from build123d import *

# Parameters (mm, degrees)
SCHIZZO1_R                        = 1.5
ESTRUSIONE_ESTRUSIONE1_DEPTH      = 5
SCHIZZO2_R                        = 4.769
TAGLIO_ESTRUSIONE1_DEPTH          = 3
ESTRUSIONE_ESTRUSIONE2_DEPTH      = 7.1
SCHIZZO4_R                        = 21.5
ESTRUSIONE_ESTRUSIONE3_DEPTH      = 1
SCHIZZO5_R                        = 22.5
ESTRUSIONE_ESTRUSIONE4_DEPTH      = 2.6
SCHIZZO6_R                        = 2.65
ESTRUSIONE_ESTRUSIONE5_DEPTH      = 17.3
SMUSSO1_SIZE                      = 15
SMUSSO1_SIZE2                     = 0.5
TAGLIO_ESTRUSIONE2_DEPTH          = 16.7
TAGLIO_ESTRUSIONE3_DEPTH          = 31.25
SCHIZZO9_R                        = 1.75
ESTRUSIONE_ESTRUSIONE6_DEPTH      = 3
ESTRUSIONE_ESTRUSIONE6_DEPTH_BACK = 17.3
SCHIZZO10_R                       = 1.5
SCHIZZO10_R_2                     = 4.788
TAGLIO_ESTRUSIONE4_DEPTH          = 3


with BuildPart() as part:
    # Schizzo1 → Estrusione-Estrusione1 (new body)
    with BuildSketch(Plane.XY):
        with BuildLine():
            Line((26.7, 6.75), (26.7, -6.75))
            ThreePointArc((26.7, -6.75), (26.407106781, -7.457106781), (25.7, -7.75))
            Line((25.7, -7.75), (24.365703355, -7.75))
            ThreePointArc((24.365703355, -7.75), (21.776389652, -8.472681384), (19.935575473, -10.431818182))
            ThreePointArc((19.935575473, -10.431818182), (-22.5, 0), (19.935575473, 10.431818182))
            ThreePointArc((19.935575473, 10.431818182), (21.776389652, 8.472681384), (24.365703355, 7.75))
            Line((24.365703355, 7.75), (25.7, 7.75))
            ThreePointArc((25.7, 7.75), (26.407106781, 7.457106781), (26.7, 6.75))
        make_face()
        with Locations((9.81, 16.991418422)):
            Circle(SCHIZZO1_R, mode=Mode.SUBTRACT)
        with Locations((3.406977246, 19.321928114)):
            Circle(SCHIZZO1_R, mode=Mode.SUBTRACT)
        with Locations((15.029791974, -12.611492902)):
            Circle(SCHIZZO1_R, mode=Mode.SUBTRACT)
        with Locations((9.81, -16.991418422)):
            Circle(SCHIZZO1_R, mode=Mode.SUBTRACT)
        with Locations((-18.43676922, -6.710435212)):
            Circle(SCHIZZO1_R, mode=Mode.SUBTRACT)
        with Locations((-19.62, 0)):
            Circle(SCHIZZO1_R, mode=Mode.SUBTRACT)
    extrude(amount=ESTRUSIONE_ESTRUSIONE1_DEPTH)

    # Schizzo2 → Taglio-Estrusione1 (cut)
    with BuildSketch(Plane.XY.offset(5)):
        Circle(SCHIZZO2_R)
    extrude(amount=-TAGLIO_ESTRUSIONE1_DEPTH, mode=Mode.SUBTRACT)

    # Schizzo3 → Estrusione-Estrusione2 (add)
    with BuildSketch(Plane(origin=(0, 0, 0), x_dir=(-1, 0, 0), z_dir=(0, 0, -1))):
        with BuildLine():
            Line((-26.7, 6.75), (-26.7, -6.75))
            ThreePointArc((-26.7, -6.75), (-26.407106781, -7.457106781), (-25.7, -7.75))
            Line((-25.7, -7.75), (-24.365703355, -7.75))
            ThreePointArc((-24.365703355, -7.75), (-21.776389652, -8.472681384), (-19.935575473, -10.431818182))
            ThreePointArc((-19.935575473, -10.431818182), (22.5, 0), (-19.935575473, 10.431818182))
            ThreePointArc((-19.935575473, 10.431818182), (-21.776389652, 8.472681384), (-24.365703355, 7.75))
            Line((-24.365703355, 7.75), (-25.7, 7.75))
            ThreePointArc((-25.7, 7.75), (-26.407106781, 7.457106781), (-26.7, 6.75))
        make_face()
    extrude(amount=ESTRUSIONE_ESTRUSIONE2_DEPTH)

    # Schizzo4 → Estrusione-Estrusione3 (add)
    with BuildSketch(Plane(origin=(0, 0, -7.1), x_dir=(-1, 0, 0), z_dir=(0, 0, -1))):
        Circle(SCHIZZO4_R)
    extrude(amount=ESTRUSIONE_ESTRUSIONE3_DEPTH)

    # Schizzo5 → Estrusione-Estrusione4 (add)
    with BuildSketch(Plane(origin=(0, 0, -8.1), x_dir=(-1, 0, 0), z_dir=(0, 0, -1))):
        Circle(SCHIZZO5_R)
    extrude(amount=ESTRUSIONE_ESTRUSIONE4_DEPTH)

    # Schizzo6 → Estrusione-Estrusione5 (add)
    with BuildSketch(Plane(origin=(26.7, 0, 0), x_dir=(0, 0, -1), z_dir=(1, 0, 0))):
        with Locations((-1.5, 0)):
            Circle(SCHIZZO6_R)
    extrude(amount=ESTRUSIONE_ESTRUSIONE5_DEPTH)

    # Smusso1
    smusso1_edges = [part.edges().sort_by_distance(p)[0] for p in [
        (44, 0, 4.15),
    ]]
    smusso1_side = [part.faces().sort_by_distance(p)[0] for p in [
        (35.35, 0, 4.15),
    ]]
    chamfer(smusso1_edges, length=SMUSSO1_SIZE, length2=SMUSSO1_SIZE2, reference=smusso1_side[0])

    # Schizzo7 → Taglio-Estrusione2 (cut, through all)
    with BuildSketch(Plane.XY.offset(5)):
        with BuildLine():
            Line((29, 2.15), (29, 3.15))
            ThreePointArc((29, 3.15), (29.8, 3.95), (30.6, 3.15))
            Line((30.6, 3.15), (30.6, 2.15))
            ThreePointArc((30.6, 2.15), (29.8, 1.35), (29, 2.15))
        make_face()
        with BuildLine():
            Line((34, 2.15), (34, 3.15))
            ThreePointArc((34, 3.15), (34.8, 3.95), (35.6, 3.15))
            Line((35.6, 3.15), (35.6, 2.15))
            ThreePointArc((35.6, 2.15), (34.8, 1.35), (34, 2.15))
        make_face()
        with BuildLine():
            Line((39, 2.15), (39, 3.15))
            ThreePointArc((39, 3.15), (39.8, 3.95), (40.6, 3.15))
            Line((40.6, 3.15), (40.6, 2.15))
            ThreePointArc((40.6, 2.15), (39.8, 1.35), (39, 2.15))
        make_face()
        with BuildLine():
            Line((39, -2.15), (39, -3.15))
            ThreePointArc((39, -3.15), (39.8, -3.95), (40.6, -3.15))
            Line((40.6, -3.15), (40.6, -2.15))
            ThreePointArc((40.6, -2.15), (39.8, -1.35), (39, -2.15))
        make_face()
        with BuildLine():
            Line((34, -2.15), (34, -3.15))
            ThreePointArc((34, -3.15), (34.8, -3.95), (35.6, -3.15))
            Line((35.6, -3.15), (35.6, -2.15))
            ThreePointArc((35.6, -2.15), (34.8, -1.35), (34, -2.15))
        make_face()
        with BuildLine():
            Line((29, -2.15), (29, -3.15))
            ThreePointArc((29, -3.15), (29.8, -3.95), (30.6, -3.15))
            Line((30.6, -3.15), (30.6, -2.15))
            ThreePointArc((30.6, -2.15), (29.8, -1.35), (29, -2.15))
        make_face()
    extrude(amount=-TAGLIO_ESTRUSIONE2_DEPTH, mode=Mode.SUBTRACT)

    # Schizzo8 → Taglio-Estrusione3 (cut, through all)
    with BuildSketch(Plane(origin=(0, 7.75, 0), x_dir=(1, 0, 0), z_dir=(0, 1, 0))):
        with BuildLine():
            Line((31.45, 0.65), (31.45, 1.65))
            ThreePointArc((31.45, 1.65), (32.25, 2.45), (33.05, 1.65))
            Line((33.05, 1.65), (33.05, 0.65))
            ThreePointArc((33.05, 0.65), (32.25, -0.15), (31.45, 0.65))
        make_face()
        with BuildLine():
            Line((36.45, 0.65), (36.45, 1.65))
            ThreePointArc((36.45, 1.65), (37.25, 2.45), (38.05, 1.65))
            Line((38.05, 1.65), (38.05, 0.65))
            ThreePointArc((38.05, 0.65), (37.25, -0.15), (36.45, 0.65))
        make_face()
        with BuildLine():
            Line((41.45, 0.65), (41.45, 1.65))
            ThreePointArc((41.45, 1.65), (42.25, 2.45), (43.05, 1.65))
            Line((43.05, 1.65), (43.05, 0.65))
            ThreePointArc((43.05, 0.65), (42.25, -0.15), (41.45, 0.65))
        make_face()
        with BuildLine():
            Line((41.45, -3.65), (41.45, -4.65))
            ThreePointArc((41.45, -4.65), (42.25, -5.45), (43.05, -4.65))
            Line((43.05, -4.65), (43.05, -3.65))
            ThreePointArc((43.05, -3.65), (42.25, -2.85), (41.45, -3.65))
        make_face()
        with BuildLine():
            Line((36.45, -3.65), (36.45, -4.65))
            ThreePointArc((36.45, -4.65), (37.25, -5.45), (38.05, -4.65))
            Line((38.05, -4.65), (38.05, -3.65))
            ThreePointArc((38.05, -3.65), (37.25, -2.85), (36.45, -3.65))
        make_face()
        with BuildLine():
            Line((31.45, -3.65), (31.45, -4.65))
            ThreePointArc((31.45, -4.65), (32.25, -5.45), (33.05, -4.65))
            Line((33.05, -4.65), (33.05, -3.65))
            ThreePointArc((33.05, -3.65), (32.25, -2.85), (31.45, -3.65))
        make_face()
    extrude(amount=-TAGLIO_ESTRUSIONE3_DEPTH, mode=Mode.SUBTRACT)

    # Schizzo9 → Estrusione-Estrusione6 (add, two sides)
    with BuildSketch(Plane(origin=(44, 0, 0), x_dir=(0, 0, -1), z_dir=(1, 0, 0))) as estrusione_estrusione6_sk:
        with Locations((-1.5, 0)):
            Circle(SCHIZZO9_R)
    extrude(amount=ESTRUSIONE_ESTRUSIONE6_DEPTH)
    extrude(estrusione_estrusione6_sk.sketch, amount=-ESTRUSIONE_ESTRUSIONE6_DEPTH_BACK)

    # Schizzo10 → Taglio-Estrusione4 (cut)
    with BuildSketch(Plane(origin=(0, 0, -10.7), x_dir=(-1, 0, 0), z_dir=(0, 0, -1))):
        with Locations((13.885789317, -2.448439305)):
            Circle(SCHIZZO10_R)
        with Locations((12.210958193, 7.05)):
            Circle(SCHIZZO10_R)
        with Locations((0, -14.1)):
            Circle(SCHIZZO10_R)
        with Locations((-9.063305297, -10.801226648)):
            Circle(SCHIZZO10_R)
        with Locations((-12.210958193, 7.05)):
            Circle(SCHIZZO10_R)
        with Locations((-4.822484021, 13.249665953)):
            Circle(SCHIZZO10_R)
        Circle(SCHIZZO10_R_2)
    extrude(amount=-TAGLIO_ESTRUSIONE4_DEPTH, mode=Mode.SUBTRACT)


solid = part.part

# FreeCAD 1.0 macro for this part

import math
import FreeCAD as App
import Part
import Sketcher

V = App.Vector
Q = App.Units.Quantity


def edges_at(feature, points):
    """Names of the edges that pass closest to the given points."""
    edges = feature.Shape.Edges
    near = lambda p: min(range(len(edges)), key=lambda i: edges[i].distToShape(Part.Vertex(*p))[0])
    return sorted({f"Edge{near(p) + 1}" for p in points})

doc = App.newDocument("Part")
params = doc.addObject("Spreadsheet::Sheet", "Params")
for row, (alias, value) in enumerate([
    ("sketch1_diameter", "3 mm"),
    ("sketch1_radius", "1 mm"),
    ("sketch1_radius2", "5 mm"),
    ("sketch1_radius3", "22.5 mm"),
    ("sketch1_height", "13.5 mm"),
    ("pad1_length", "5 mm"),
    ("pocket1_length", "3 mm"),
    ("sketch3_radius", "1 mm"),
    ("sketch3_radius2", "5 mm"),
    ("sketch3_radius3", "22.5 mm"),
    ("sketch3_height", "13.5 mm"),
    ("pad2_length", "7.1 mm"),
    ("sketch4_diameter", "43 mm"),
    ("pad3_length", "1 mm"),
    ("sketch5_diameter", "45 mm"),
    ("pad4_length", "2.6 mm"),
    ("sketch6_diameter", "5.3 mm"),
    ("pad5_length", "17.3 mm"),
    ("chamfer_size", "15 mm"),
    ("chamfer_size2", "0.5 mm"),
    ("sketch7_radius", "0.8 mm"),
    ("sketch7_height", "1 mm"),
    ("sketch8_radius", "0.8 mm"),
    ("sketch8_height", "1 mm"),
    ("sketch9_diameter", "3.5 mm"),
    ("pad6_length", "3 mm"),
    ("pad6_length2", "17.3 mm"),
    ("sketch10_diameter", "3 mm"),
    ("pocket4_length", "3 mm"),
], start=1):
    params.set(f"A{row}", alias)
    params.set(f"B{row}", "=" + value)
    params.setAlias(f"B{row}", alias)

body = doc.addObject("PartDesign::Body", "Body")

sketch1 = doc.addObject("Sketcher::SketchObject", "Sketch")
body.addObject(sketch1)
sketch1.AttachmentSupport = (doc.XY_Plane, [""])
sketch1.MapMode = "FlatFace"
sketch1.addGeometry(Part.LineSegment(V(26.7, -6.8, 0), V(26.7, 6.8, 0)), False)
sketch1.addGeometry(Part.ArcOfCircle(Part.Circle(V(25.7, 6.7, 0), V(0, 0, 1), 1), math.radians(0), math.radians(90)), False)
sketch1.addGeometry(Part.LineSegment(V(25.7, 7.8, 0), V(24.4, 7.8, 0)), False)
sketch1.addGeometry(Part.ArcOfCircle(Part.Circle(V(24.4, 12.8, 0), V(0, 0, 1), 5), math.radians(-152), math.radians(-90)), False)
sketch1.addGeometry(Part.ArcOfCircle(Part.Circle(V(0, 0, 0), V(0, 0, 1), 22.5), math.radians(28), math.radians(332)), False)
sketch1.addGeometry(Part.ArcOfCircle(Part.Circle(V(24.4, -12.8, 0), V(0, 0, 1), 5), math.radians(90), math.radians(152)), False)
sketch1.addGeometry(Part.LineSegment(V(24.4, -7.8, 0), V(25.7, -7.8, 0)), False)
sketch1.addGeometry(Part.ArcOfCircle(Part.Circle(V(25.7, -6.7, 0), V(0, 0, 1), 1), math.radians(-90), math.radians(0)), False)
sketch1.addGeometry(Part.Circle(V(9.8, -17, 0), V(0, 0, 1), 1.5), False)
sketch1.addGeometry(Part.Circle(V(15, -12.6, 0), V(0, 0, 1), 1.5), False)
sketch1.addGeometry(Part.Circle(V(-18.4, -6.7, 0), V(0, 0, 1), 1.5), False)
sketch1.addGeometry(Part.Circle(V(-19.6, 0, 0), V(0, 0, 1), 1.5), False)
sketch1.addGeometry(Part.Circle(V(9.8, 17, 0), V(0, 0, 1), 1.5), False)
sketch1.addGeometry(Part.Circle(V(3.4, 19.3, 0), V(0, 0, 1), 1.5), False)
sketch1.addConstraint(Sketcher.Constraint("Tangent", 0, 2, 1, 1))
sketch1.addConstraint(Sketcher.Constraint("Tangent", 1, 2, 2, 1))
sketch1.addConstraint(Sketcher.Constraint("Tangent", 2, 2, 3, 2))
sketch1.addConstraint(Sketcher.Constraint("Tangent", 3, 1, 4, 1))
sketch1.addConstraint(Sketcher.Constraint("Tangent", 4, 2, 5, 2))
sketch1.addConstraint(Sketcher.Constraint("Tangent", 5, 1, 6, 1))
sketch1.addConstraint(Sketcher.Constraint("Tangent", 6, 2, 7, 1))
sketch1.addConstraint(Sketcher.Constraint("Tangent", 7, 2, 0, 1))
sketch1.addConstraint(Sketcher.Constraint("Vertical", 0))
sketch1.addConstraint(Sketcher.Constraint("Horizontal", 2))
sketch1.addConstraint(Sketcher.Constraint("Horizontal", 6))
sketch1.addConstraint(Sketcher.Constraint("Coincident", 4, 3, -1, 1))
sketch1.addConstraint(Sketcher.Constraint("Equal", 3, 5))
sketch1.addConstraint(Sketcher.Constraint("Equal", 1, 7))
sketch1.addConstraint(Sketcher.Constraint("Equal", 8, 9))
sketch1.addConstraint(Sketcher.Constraint("Equal", 9, 10))
sketch1.addConstraint(Sketcher.Constraint("Equal", 10, 11))
sketch1.addConstraint(Sketcher.Constraint("Equal", 11, 12))
sketch1.addConstraint(Sketcher.Constraint("Equal", 12, 13))
sketch1.addConstraint(Sketcher.Constraint("Symmetric", 8, 3, 12, 3, -1))
sketch1.addConstraint(Sketcher.Constraint("PointOnObject", 11, 3, -1))
sketch1.addConstraint(Sketcher.Constraint("Vertical", 3, 3, 5, 3))
sketch1.addConstraint(Sketcher.Constraint("Diameter", 8, Q("3 mm")))
sketch1.addConstraint(Sketcher.Constraint("Radius", 1, Q("1 mm")))
sketch1.addConstraint(Sketcher.Constraint("Radius", 3, Q("5 mm")))
sketch1.addConstraint(Sketcher.Constraint("Radius", 4, Q("22.5 mm")))
sketch1.addConstraint(Sketcher.Constraint("DistanceY", 0, 1, 0, 2, Q("13.5 mm")))
sketch1.addConstraint(Sketcher.Constraint("DistanceX", -1, 1, 1, 3, Q("25.7 mm")))
sketch1.addConstraint(Sketcher.Constraint("DistanceX", -1, 1, 8, 3, Q("9.81 mm")))
sketch1.addConstraint(Sketcher.Constraint("DistanceX", 11, 3, -1, 1, Q("19.62 mm")))
sketch1.addConstraint(Sketcher.Constraint("DistanceY", 8, 3, 4, 2, Q("6.5596 mm")))
sketch1.addConstraint(Sketcher.Constraint("DistanceX", -1, 1, 9, 3, Q("15.029792 mm")))
sketch1.addConstraint(Sketcher.Constraint("DistanceX", 10, 3, -1, 1, Q("18.436769 mm")))
sketch1.addConstraint(Sketcher.Constraint("DistanceY", -1, 1, 13, 3, Q("19.321928 mm")))
sketch1.addConstraint(Sketcher.Constraint("DistanceY", 9, 3, 12, 3, Q("29.602911 mm")))
sketch1.addConstraint(Sketcher.Constraint("DistanceY", 10, 3, -1, 1, Q("6.710435 mm")))
sketch1.addConstraint(Sketcher.Constraint("DistanceX", -1, 1, 13, 3, Q("3.406977 mm")))
sketch1.setExpression("Constraints[22]", "Params.sketch1_diameter")
sketch1.setExpression("Constraints[23]", "Params.sketch1_radius")
sketch1.setExpression("Constraints[24]", "Params.sketch1_radius2")
sketch1.setExpression("Constraints[25]", "Params.sketch1_radius3")
sketch1.setExpression("Constraints[26]", "Params.sketch1_height")
pad1 = doc.addObject("PartDesign::Pad", "Pad")
body.addObject(pad1)
pad1.Profile = sketch1
pad1.setExpression("Length", "Params.pad1_length")

sketch2 = doc.addObject("Sketcher::SketchObject", "Sketch001")
body.addObject(sketch2)
sketch2.AttachmentSupport = (doc.XY_Plane, [""])
sketch2.MapMode = "FlatFace"
sketch2.AttachmentOffset = App.Placement(V(0, 0, 5), App.Rotation())
sketch2.addGeometry(Part.Circle(V(0, 0, 0), V(0, 0, 1), 4.8), False)
sketch2.addConstraint(Sketcher.Constraint("Coincident", 0, 3, -1, 1))
sketch2.addConstraint(Sketcher.Constraint("Diameter", 0, Q("9.538 mm")))
pocket1 = doc.addObject("PartDesign::Pocket", "Pocket")
body.addObject(pocket1)
pocket1.Profile = sketch2
pocket1.setExpression("Length", "Params.pocket1_length")

sketch3 = doc.addObject("Sketcher::SketchObject", "Sketch002")
body.addObject(sketch3)
sketch3.AttachmentSupport = (doc.XY_Plane, [""])
sketch3.MapMode = "FlatFace"
sketch3.addGeometry(Part.LineSegment(V(26.7, 6.8, 0), V(26.7, -6.8, 0)), False)
sketch3.addGeometry(Part.ArcOfCircle(Part.Circle(V(25.7, -6.7, 0), V(0, 0, 1), 1), math.radians(-90), math.radians(0)), False)
sketch3.addGeometry(Part.LineSegment(V(25.7, -7.8, 0), V(24.4, -7.8, 0)), False)
sketch3.addGeometry(Part.ArcOfCircle(Part.Circle(V(24.4, -12.8, 0), V(0, 0, 1), 5), math.radians(90), math.radians(152)), False)
sketch3.addGeometry(Part.ArcOfCircle(Part.Circle(V(0, 0, 0), V(0, 0, 1), 22.5), math.radians(28), math.radians(332)), False)
sketch3.addGeometry(Part.ArcOfCircle(Part.Circle(V(24.4, 12.8, 0), V(0, 0, 1), 5), math.radians(-152), math.radians(-90)), False)
sketch3.addGeometry(Part.LineSegment(V(24.4, 7.8, 0), V(25.7, 7.8, 0)), False)
sketch3.addGeometry(Part.ArcOfCircle(Part.Circle(V(25.7, 6.7, 0), V(0, 0, 1), 1), math.radians(0), math.radians(90)), False)
sketch3.addConstraint(Sketcher.Constraint("Tangent", 0, 2, 1, 2))
sketch3.addConstraint(Sketcher.Constraint("Tangent", 1, 1, 2, 1))
sketch3.addConstraint(Sketcher.Constraint("Tangent", 2, 2, 3, 1))
sketch3.addConstraint(Sketcher.Constraint("Tangent", 3, 2, 4, 2))
sketch3.addConstraint(Sketcher.Constraint("Tangent", 4, 1, 5, 1))
sketch3.addConstraint(Sketcher.Constraint("Tangent", 5, 2, 6, 1))
sketch3.addConstraint(Sketcher.Constraint("Tangent", 6, 2, 7, 2))
sketch3.addConstraint(Sketcher.Constraint("Tangent", 7, 1, 0, 1))
sketch3.addConstraint(Sketcher.Constraint("Vertical", 0))
sketch3.addConstraint(Sketcher.Constraint("Horizontal", 2))
sketch3.addConstraint(Sketcher.Constraint("Horizontal", 6))
sketch3.addConstraint(Sketcher.Constraint("Coincident", 4, 3, -1, 1))
sketch3.addConstraint(Sketcher.Constraint("Equal", 3, 5))
sketch3.addConstraint(Sketcher.Constraint("Equal", 1, 7))
sketch3.addConstraint(Sketcher.Constraint("Vertical", 3, 3, 5, 3))
sketch3.addConstraint(Sketcher.Constraint("Radius", 1, Q("1 mm")))
sketch3.addConstraint(Sketcher.Constraint("Radius", 3, Q("5 mm")))
sketch3.addConstraint(Sketcher.Constraint("Radius", 4, Q("22.5 mm")))
sketch3.addConstraint(Sketcher.Constraint("DistanceY", 0, 2, 0, 1, Q("13.5 mm")))
sketch3.addConstraint(Sketcher.Constraint("DistanceX", -1, 1, 1, 3, Q("25.7 mm")))
sketch3.setExpression("Constraints[15]", "Params.sketch3_radius")
sketch3.setExpression("Constraints[16]", "Params.sketch3_radius2")
sketch3.setExpression("Constraints[17]", "Params.sketch3_radius3")
sketch3.setExpression("Constraints[18]", "Params.sketch3_height")
pad2 = doc.addObject("PartDesign::Pad", "Pad001")
body.addObject(pad2)
pad2.Profile = sketch3
pad2.setExpression("Length", "Params.pad2_length")
pad2.Reversed = True

sketch4 = doc.addObject("Sketcher::SketchObject", "Sketch003")
body.addObject(sketch4)
sketch4.AttachmentSupport = (doc.XY_Plane, [""])
sketch4.MapMode = "FlatFace"
sketch4.AttachmentOffset = App.Placement(V(0, 0, -7.1), App.Rotation())
sketch4.addGeometry(Part.Circle(V(0, 0, 0), V(0, 0, 1), 22), False)
sketch4.addConstraint(Sketcher.Constraint("Coincident", 0, 3, -1, 1))
sketch4.addConstraint(Sketcher.Constraint("Diameter", 0, Q("43 mm")))
sketch4.setExpression("Constraints[1]", "Params.sketch4_diameter")
pad3 = doc.addObject("PartDesign::Pad", "Pad002")
body.addObject(pad3)
pad3.Profile = sketch4
pad3.setExpression("Length", "Params.pad3_length")
pad3.Reversed = True

sketch5 = doc.addObject("Sketcher::SketchObject", "Sketch004")
body.addObject(sketch5)
sketch5.AttachmentSupport = (doc.XY_Plane, [""])
sketch5.MapMode = "FlatFace"
sketch5.AttachmentOffset = App.Placement(V(0, 0, -8.1), App.Rotation())
sketch5.addGeometry(Part.Circle(V(0, 0, 0), V(0, 0, 1), 22), False)
sketch5.addConstraint(Sketcher.Constraint("Coincident", 0, 3, -1, 1))
sketch5.addConstraint(Sketcher.Constraint("Diameter", 0, Q("45 mm")))
sketch5.setExpression("Constraints[1]", "Params.sketch5_diameter")
pad4 = doc.addObject("PartDesign::Pad", "Pad003")
body.addObject(pad4)
pad4.Profile = sketch5
pad4.setExpression("Length", "Params.pad4_length")
pad4.Reversed = True

sketch6 = doc.addObject("Sketcher::SketchObject", "Sketch005")
body.addObject(sketch6)
sketch6.AttachmentSupport = (doc.YZ_Plane, [""])
sketch6.MapMode = "FlatFace"
sketch6.AttachmentOffset = App.Placement(V(0, 0, 26.7), App.Rotation())
sketch6.addGeometry(Part.Circle(V(0, 1.5, 0), V(0, 0, 1), 2.6), False)
sketch6.addConstraint(Sketcher.Constraint("PointOnObject", 0, 3, -2))
sketch6.addConstraint(Sketcher.Constraint("Diameter", 0, Q("5.3 mm")))
sketch6.addConstraint(Sketcher.Constraint("DistanceY", -1, 1, 0, 3, Q("1.5 mm")))
sketch6.setExpression("Constraints[1]", "Params.sketch6_diameter")
pad5 = doc.addObject("PartDesign::Pad", "Pad004")
body.addObject(pad5)
pad5.Profile = sketch6
pad5.setExpression("Length", "Params.pad5_length")
doc.recompute()

chamfer = doc.addObject("PartDesign::Chamfer", "Chamfer")
body.addObject(chamfer)
chamfer.Base = (pad5, edges_at(pad5, [(44, 0, 4.15)]))
chamfer.ChamferType = "Two distances"
chamfer.setExpression("Size", "Params.chamfer_size")
chamfer.setExpression("Size2", "Params.chamfer_size2")

sketch7 = doc.addObject("Sketcher::SketchObject", "Sketch006")
body.addObject(sketch7)
sketch7.AttachmentSupport = (doc.XY_Plane, [""])
sketch7.MapMode = "FlatFace"
sketch7.AttachmentOffset = App.Placement(V(0, 0, 5), App.Rotation())
sketch7.addGeometry(Part.LineSegment(V(29, 3.1, 0), V(29, 2.1, 0)), False)
sketch7.addGeometry(Part.ArcOfCircle(Part.Circle(V(29.8, 2.1, 0), V(0, 0, 1), 0.8), math.radians(180), math.radians(360)), False)
sketch7.addGeometry(Part.LineSegment(V(30.6, 2.1, 0), V(30.6, 3.1, 0)), False)
sketch7.addGeometry(Part.ArcOfCircle(Part.Circle(V(29.8, 3.1, 0), V(0, 0, 1), 0.8), math.radians(0), math.radians(180)), False)
sketch7.addGeometry(Part.LineSegment(V(34, 3.1, 0), V(34, 2.1, 0)), False)
sketch7.addGeometry(Part.ArcOfCircle(Part.Circle(V(34.8, 2.1, 0), V(0, 0, 1), 0.8), math.radians(180), math.radians(360)), False)
sketch7.addGeometry(Part.LineSegment(V(35.6, 2.1, 0), V(35.6, 3.1, 0)), False)
sketch7.addGeometry(Part.ArcOfCircle(Part.Circle(V(34.8, 3.1, 0), V(0, 0, 1), 0.8), math.radians(0), math.radians(180)), False)
sketch7.addGeometry(Part.LineSegment(V(39, 3.1, 0), V(39, 2.1, 0)), False)
sketch7.addGeometry(Part.ArcOfCircle(Part.Circle(V(39.8, 2.1, 0), V(0, 0, 1), 0.8), math.radians(180), math.radians(360)), False)
sketch7.addGeometry(Part.LineSegment(V(40.6, 2.1, 0), V(40.6, 3.1, 0)), False)
sketch7.addGeometry(Part.ArcOfCircle(Part.Circle(V(39.8, 3.1, 0), V(0, 0, 1), 0.8), math.radians(0), math.radians(180)), False)
sketch7.addGeometry(Part.LineSegment(V(39, -2.1, 0), V(39, -3.1, 0)), False)
sketch7.addGeometry(Part.ArcOfCircle(Part.Circle(V(39.8, -3.1, 0), V(0, 0, 1), 0.8), math.radians(180), math.radians(360)), False)
sketch7.addGeometry(Part.LineSegment(V(40.6, -3.1, 0), V(40.6, -2.1, 0)), False)
sketch7.addGeometry(Part.ArcOfCircle(Part.Circle(V(39.8, -2.1, 0), V(0, 0, 1), 0.8), math.radians(0), math.radians(180)), False)
sketch7.addGeometry(Part.LineSegment(V(34, -2.1, 0), V(34, -3.1, 0)), False)
sketch7.addGeometry(Part.ArcOfCircle(Part.Circle(V(34.8, -3.1, 0), V(0, 0, 1), 0.8), math.radians(180), math.radians(360)), False)
sketch7.addGeometry(Part.LineSegment(V(35.6, -3.1, 0), V(35.6, -2.1, 0)), False)
sketch7.addGeometry(Part.ArcOfCircle(Part.Circle(V(34.8, -2.1, 0), V(0, 0, 1), 0.8), math.radians(0), math.radians(180)), False)
sketch7.addGeometry(Part.LineSegment(V(29, -2.1, 0), V(29, -3.1, 0)), False)
sketch7.addGeometry(Part.ArcOfCircle(Part.Circle(V(29.8, -3.1, 0), V(0, 0, 1), 0.8), math.radians(180), math.radians(360)), False)
sketch7.addGeometry(Part.LineSegment(V(30.6, -3.1, 0), V(30.6, -2.1, 0)), False)
sketch7.addGeometry(Part.ArcOfCircle(Part.Circle(V(29.8, -2.1, 0), V(0, 0, 1), 0.8), math.radians(0), math.radians(180)), False)
sketch7.addConstraint(Sketcher.Constraint("Tangent", 0, 2, 1, 1))
sketch7.addConstraint(Sketcher.Constraint("Tangent", 1, 2, 2, 1))
sketch7.addConstraint(Sketcher.Constraint("Tangent", 2, 2, 3, 1))
sketch7.addConstraint(Sketcher.Constraint("Tangent", 3, 2, 0, 1))
sketch7.addConstraint(Sketcher.Constraint("Tangent", 4, 2, 5, 1))
sketch7.addConstraint(Sketcher.Constraint("Tangent", 5, 2, 6, 1))
sketch7.addConstraint(Sketcher.Constraint("Tangent", 6, 2, 7, 1))
sketch7.addConstraint(Sketcher.Constraint("Tangent", 7, 2, 4, 1))
sketch7.addConstraint(Sketcher.Constraint("Tangent", 8, 2, 9, 1))
sketch7.addConstraint(Sketcher.Constraint("Tangent", 9, 2, 10, 1))
sketch7.addConstraint(Sketcher.Constraint("Tangent", 10, 2, 11, 1))
sketch7.addConstraint(Sketcher.Constraint("Tangent", 11, 2, 8, 1))
sketch7.addConstraint(Sketcher.Constraint("Tangent", 12, 2, 13, 1))
sketch7.addConstraint(Sketcher.Constraint("Tangent", 13, 2, 14, 1))
sketch7.addConstraint(Sketcher.Constraint("Tangent", 14, 2, 15, 1))
sketch7.addConstraint(Sketcher.Constraint("Tangent", 15, 2, 12, 1))
sketch7.addConstraint(Sketcher.Constraint("Tangent", 16, 2, 17, 1))
sketch7.addConstraint(Sketcher.Constraint("Tangent", 17, 2, 18, 1))
sketch7.addConstraint(Sketcher.Constraint("Tangent", 18, 2, 19, 1))
sketch7.addConstraint(Sketcher.Constraint("Tangent", 19, 2, 16, 1))
sketch7.addConstraint(Sketcher.Constraint("Tangent", 20, 2, 21, 1))
sketch7.addConstraint(Sketcher.Constraint("Tangent", 21, 2, 22, 1))
sketch7.addConstraint(Sketcher.Constraint("Tangent", 22, 2, 23, 1))
sketch7.addConstraint(Sketcher.Constraint("Tangent", 23, 2, 20, 1))
sketch7.addConstraint(Sketcher.Constraint("Vertical", 0))
sketch7.addConstraint(Sketcher.Constraint("Vertical", 2))
sketch7.addConstraint(Sketcher.Constraint("Vertical", 4))
sketch7.addConstraint(Sketcher.Constraint("Vertical", 6))
sketch7.addConstraint(Sketcher.Constraint("Vertical", 8))
sketch7.addConstraint(Sketcher.Constraint("Vertical", 10))
sketch7.addConstraint(Sketcher.Constraint("Vertical", 12))
sketch7.addConstraint(Sketcher.Constraint("Vertical", 14))
sketch7.addConstraint(Sketcher.Constraint("Vertical", 16))
sketch7.addConstraint(Sketcher.Constraint("Vertical", 18))
sketch7.addConstraint(Sketcher.Constraint("Vertical", 20))
sketch7.addConstraint(Sketcher.Constraint("Vertical", 22))
sketch7.addConstraint(Sketcher.Constraint("Equal", 3, 5))
sketch7.addConstraint(Sketcher.Constraint("Equal", 7, 9))
sketch7.addConstraint(Sketcher.Constraint("Equal", 11, 13))
sketch7.addConstraint(Sketcher.Constraint("Equal", 15, 17))
sketch7.addConstraint(Sketcher.Constraint("Equal", 19, 21))
sketch7.addConstraint(Sketcher.Constraint("Symmetric", 11, 3, 13, 3, -1))
sketch7.addConstraint(Sketcher.Constraint("Symmetric", 7, 3, 17, 3, -1))
sketch7.addConstraint(Sketcher.Constraint("Symmetric", 3, 3, 21, 3, -1))
sketch7.addConstraint(Sketcher.Constraint("Horizontal", 1, 3, 5, 3))
sketch7.addConstraint(Sketcher.Constraint("Horizontal", 3, 3, 7, 3))
sketch7.addConstraint(Sketcher.Constraint("Horizontal", 5, 3, 9, 3))
sketch7.addConstraint(Sketcher.Constraint("Horizontal", 7, 3, 11, 3))
sketch7.addConstraint(Sketcher.Constraint("Horizontal", 15, 3, 19, 3))
sketch7.addConstraint(Sketcher.Constraint("Horizontal", 19, 3, 23, 3))
sketch7.addConstraint(Sketcher.Constraint("Equal", 10, 12))
sketch7.addConstraint(Sketcher.Constraint("Radius", 1, Q("0.8 mm")))
sketch7.addConstraint(Sketcher.Constraint("DistanceY", 0, 2, 0, 1, Q("1 mm")))
sketch7.addConstraint(Sketcher.Constraint("DistanceX", -1, 1, 0, 2, Q("29 mm")))
sketch7.addConstraint(Sketcher.Constraint("DistanceX", -1, 1, 4, 2, Q("34 mm")))
sketch7.addConstraint(Sketcher.Constraint("DistanceX", -1, 1, 8, 2, Q("39 mm")))
sketch7.addConstraint(Sketcher.Constraint("DistanceY", 13, 3, 9, 3, Q("5.3 mm")))
sketch7.setExpression("Constraints[51]", "Params.sketch7_radius")
sketch7.setExpression("Constraints[52]", "Params.sketch7_height")
pocket2 = doc.addObject("PartDesign::Pocket", "Pocket001")
body.addObject(pocket2)
pocket2.Profile = sketch7
pocket2.Type = "ThroughAll"

sketch8 = doc.addObject("Sketcher::SketchObject", "Sketch007")
body.addObject(sketch8)
sketch8.AttachmentSupport = (doc.XZ_Plane, [""])
sketch8.MapMode = "FlatFace"
sketch8.AttachmentOffset = App.Placement(V(0, 0, -7.75), App.Rotation())
sketch8.addGeometry(Part.LineSegment(V(31.4, -1.6, 0), V(31.4, -0.7, 0)), False)
sketch8.addGeometry(Part.ArcOfCircle(Part.Circle(V(32.2, -0.7, 0), V(0, 0, 1), 0.8), math.radians(0), math.radians(180)), False)
sketch8.addGeometry(Part.LineSegment(V(33, -0.7, 0), V(33, -1.6, 0)), False)
sketch8.addGeometry(Part.ArcOfCircle(Part.Circle(V(32.2, -1.6, 0), V(0, 0, 1), 0.8), math.radians(180), math.radians(360)), False)
sketch8.addGeometry(Part.LineSegment(V(36.5, -1.6, 0), V(36.5, -0.7, 0)), False)
sketch8.addGeometry(Part.ArcOfCircle(Part.Circle(V(37.2, -0.7, 0), V(0, 0, 1), 0.8), math.radians(0), math.radians(180)), False)
sketch8.addGeometry(Part.LineSegment(V(38, -0.7, 0), V(38, -1.6, 0)), False)
sketch8.addGeometry(Part.ArcOfCircle(Part.Circle(V(37.2, -1.6, 0), V(0, 0, 1), 0.8), math.radians(180), math.radians(360)), False)
sketch8.addGeometry(Part.LineSegment(V(41.5, -1.6, 0), V(41.5, -0.7, 0)), False)
sketch8.addGeometry(Part.ArcOfCircle(Part.Circle(V(42.2, -0.7, 0), V(0, 0, 1), 0.8), math.radians(0), math.radians(180)), False)
sketch8.addGeometry(Part.LineSegment(V(43, -0.7, 0), V(43, -1.6, 0)), False)
sketch8.addGeometry(Part.ArcOfCircle(Part.Circle(V(42.2, -1.6, 0), V(0, 0, 1), 0.8), math.radians(180), math.radians(360)), False)
sketch8.addGeometry(Part.LineSegment(V(41.5, 3.6, 0), V(41.5, 4.7, 0)), False)
sketch8.addGeometry(Part.ArcOfCircle(Part.Circle(V(42.2, 4.7, 0), V(0, 0, 1), 0.8), math.radians(0), math.radians(180)), False)
sketch8.addGeometry(Part.LineSegment(V(43, 4.7, 0), V(43, 3.6, 0)), False)
sketch8.addGeometry(Part.ArcOfCircle(Part.Circle(V(42.2, 3.6, 0), V(0, 0, 1), 0.8), math.radians(180), math.radians(360)), False)
sketch8.addGeometry(Part.LineSegment(V(36.5, 3.6, 0), V(36.5, 4.7, 0)), False)
sketch8.addGeometry(Part.ArcOfCircle(Part.Circle(V(37.2, 4.7, 0), V(0, 0, 1), 0.8), math.radians(0), math.radians(180)), False)
sketch8.addGeometry(Part.LineSegment(V(38, 4.7, 0), V(38, 3.6, 0)), False)
sketch8.addGeometry(Part.ArcOfCircle(Part.Circle(V(37.2, 3.6, 0), V(0, 0, 1), 0.8), math.radians(180), math.radians(360)), False)
sketch8.addGeometry(Part.LineSegment(V(31.4, 3.6, 0), V(31.4, 4.7, 0)), False)
sketch8.addGeometry(Part.ArcOfCircle(Part.Circle(V(32.2, 4.7, 0), V(0, 0, 1), 0.8), math.radians(0), math.radians(180)), False)
sketch8.addGeometry(Part.LineSegment(V(33, 4.7, 0), V(33, 3.6, 0)), False)
sketch8.addGeometry(Part.ArcOfCircle(Part.Circle(V(32.2, 3.6, 0), V(0, 0, 1), 0.8), math.radians(180), math.radians(360)), False)
sketch8.addConstraint(Sketcher.Constraint("Tangent", 0, 2, 1, 2))
sketch8.addConstraint(Sketcher.Constraint("Tangent", 1, 1, 2, 1))
sketch8.addConstraint(Sketcher.Constraint("Tangent", 2, 2, 3, 2))
sketch8.addConstraint(Sketcher.Constraint("Tangent", 3, 1, 0, 1))
sketch8.addConstraint(Sketcher.Constraint("Tangent", 4, 2, 5, 2))
sketch8.addConstraint(Sketcher.Constraint("Tangent", 5, 1, 6, 1))
sketch8.addConstraint(Sketcher.Constraint("Tangent", 6, 2, 7, 2))
sketch8.addConstraint(Sketcher.Constraint("Tangent", 7, 1, 4, 1))
sketch8.addConstraint(Sketcher.Constraint("Tangent", 8, 2, 9, 2))
sketch8.addConstraint(Sketcher.Constraint("Tangent", 9, 1, 10, 1))
sketch8.addConstraint(Sketcher.Constraint("Tangent", 10, 2, 11, 2))
sketch8.addConstraint(Sketcher.Constraint("Tangent", 11, 1, 8, 1))
sketch8.addConstraint(Sketcher.Constraint("Tangent", 12, 2, 13, 2))
sketch8.addConstraint(Sketcher.Constraint("Tangent", 13, 1, 14, 1))
sketch8.addConstraint(Sketcher.Constraint("Tangent", 14, 2, 15, 2))
sketch8.addConstraint(Sketcher.Constraint("Tangent", 15, 1, 12, 1))
sketch8.addConstraint(Sketcher.Constraint("Tangent", 16, 2, 17, 2))
sketch8.addConstraint(Sketcher.Constraint("Tangent", 17, 1, 18, 1))
sketch8.addConstraint(Sketcher.Constraint("Tangent", 18, 2, 19, 2))
sketch8.addConstraint(Sketcher.Constraint("Tangent", 19, 1, 16, 1))
sketch8.addConstraint(Sketcher.Constraint("Tangent", 20, 2, 21, 2))
sketch8.addConstraint(Sketcher.Constraint("Tangent", 21, 1, 22, 1))
sketch8.addConstraint(Sketcher.Constraint("Tangent", 22, 2, 23, 2))
sketch8.addConstraint(Sketcher.Constraint("Tangent", 23, 1, 20, 1))
sketch8.addConstraint(Sketcher.Constraint("Vertical", 0))
sketch8.addConstraint(Sketcher.Constraint("Vertical", 2))
sketch8.addConstraint(Sketcher.Constraint("Vertical", 4))
sketch8.addConstraint(Sketcher.Constraint("Vertical", 6))
sketch8.addConstraint(Sketcher.Constraint("Vertical", 8))
sketch8.addConstraint(Sketcher.Constraint("Vertical", 10))
sketch8.addConstraint(Sketcher.Constraint("Vertical", 12))
sketch8.addConstraint(Sketcher.Constraint("Vertical", 14))
sketch8.addConstraint(Sketcher.Constraint("Vertical", 16))
sketch8.addConstraint(Sketcher.Constraint("Vertical", 18))
sketch8.addConstraint(Sketcher.Constraint("Vertical", 20))
sketch8.addConstraint(Sketcher.Constraint("Vertical", 22))
sketch8.addConstraint(Sketcher.Constraint("Equal", 3, 5))
sketch8.addConstraint(Sketcher.Constraint("Equal", 7, 9))
sketch8.addConstraint(Sketcher.Constraint("Equal", 11, 13))
sketch8.addConstraint(Sketcher.Constraint("Equal", 15, 17))
sketch8.addConstraint(Sketcher.Constraint("Equal", 19, 21))
sketch8.addConstraint(Sketcher.Constraint("Horizontal", 1, 3, 5, 3))
sketch8.addConstraint(Sketcher.Constraint("Horizontal", 3, 3, 7, 3))
sketch8.addConstraint(Sketcher.Constraint("Horizontal", 5, 3, 9, 3))
sketch8.addConstraint(Sketcher.Constraint("Horizontal", 7, 3, 11, 3))
sketch8.addConstraint(Sketcher.Constraint("Horizontal", 13, 3, 17, 3))
sketch8.addConstraint(Sketcher.Constraint("Horizontal", 15, 3, 19, 3))
sketch8.addConstraint(Sketcher.Constraint("Horizontal", 17, 3, 21, 3))
sketch8.addConstraint(Sketcher.Constraint("Horizontal", 19, 3, 23, 3))
sketch8.addConstraint(Sketcher.Constraint("Vertical", 11, 3, 13, 3))
sketch8.addConstraint(Sketcher.Constraint("Vertical", 7, 3, 17, 3))
sketch8.addConstraint(Sketcher.Constraint("Vertical", 3, 3, 21, 3))
sketch8.addConstraint(Sketcher.Constraint("Equal", 10, 12))
sketch8.addConstraint(Sketcher.Constraint("Radius", 1, Q("0.8 mm")))
sketch8.addConstraint(Sketcher.Constraint("DistanceY", 0, 1, 0, 2, Q("1 mm")))
sketch8.addConstraint(Sketcher.Constraint("DistanceX", 1, 3, 5, 3, Q("5 mm")))
sketch8.addConstraint(Sketcher.Constraint("DistanceX", 5, 3, 9, 3, Q("5 mm")))
sketch8.addConstraint(Sketcher.Constraint("DistanceY", 9, 3, 13, 3, Q("5.3 mm")))
sketch8.addConstraint(Sketcher.Constraint("DistanceX", -1, 1, 1, 3, Q("32.25 mm")))
sketch8.addConstraint(Sketcher.Constraint("DistanceY", 1, 3, -1, 1, Q("0.65 mm")))
sketch8.setExpression("Constraints[53]", "Params.sketch8_radius")
sketch8.setExpression("Constraints[54]", "Params.sketch8_height")
pocket3 = doc.addObject("PartDesign::Pocket", "Pocket002")
body.addObject(pocket3)
pocket3.Profile = sketch8
pocket3.Type = "ThroughAll"
pocket3.Reversed = True

sketch9 = doc.addObject("Sketcher::SketchObject", "Sketch008")
body.addObject(sketch9)
sketch9.AttachmentSupport = (doc.YZ_Plane, [""])
sketch9.MapMode = "FlatFace"
sketch9.AttachmentOffset = App.Placement(V(0, 0, 44), App.Rotation())
sketch9.addGeometry(Part.Circle(V(0, 1.5, 0), V(0, 0, 1), 1.8), False)
sketch9.addConstraint(Sketcher.Constraint("PointOnObject", 0, 3, -2))
sketch9.addConstraint(Sketcher.Constraint("Diameter", 0, Q("3.5 mm")))
sketch9.addConstraint(Sketcher.Constraint("DistanceY", -1, 1, 0, 3, Q("1.5 mm")))
sketch9.setExpression("Constraints[1]", "Params.sketch9_diameter")
pad6 = doc.addObject("PartDesign::Pad", "Pad005")
body.addObject(pad6)
pad6.Profile = sketch9
pad6.Type = "TwoLengths"
pad6.setExpression("Length", "Params.pad6_length")
pad6.setExpression("Length2", "Params.pad6_length2")

sketch10 = doc.addObject("Sketcher::SketchObject", "Sketch009")
body.addObject(sketch10)
sketch10.AttachmentSupport = (doc.XY_Plane, [""])
sketch10.MapMode = "FlatFace"
sketch10.AttachmentOffset = App.Placement(V(0, 0, -10.7), App.Rotation())
sketch10.addGeometry(Part.Circle(V(-13.9, -2.4, 0), V(0, 0, 1), 1.5), False)
sketch10.addGeometry(Part.Circle(V(-12.2, 7, 0), V(0, 0, 1), 1.5), False)
sketch10.addGeometry(Part.Circle(V(0, -14.1, 0), V(0, 0, 1), 1.5), False)
sketch10.addGeometry(Part.Circle(V(9.1, -10.8, 0), V(0, 0, 1), 1.5), False)
sketch10.addGeometry(Part.Circle(V(12.2, 7, 0), V(0, 0, 1), 1.5), False)
sketch10.addGeometry(Part.Circle(V(4.8, 13.2, 0), V(0, 0, 1), 1.5), False)
sketch10.addGeometry(Part.Circle(V(0, 0, 0), V(0, 0, 1), 4.8), False)
sketch10.addConstraint(Sketcher.Constraint("Coincident", 6, 3, -1, 1))
sketch10.addConstraint(Sketcher.Constraint("Equal", 0, 1))
sketch10.addConstraint(Sketcher.Constraint("Equal", 1, 2))
sketch10.addConstraint(Sketcher.Constraint("Equal", 2, 3))
sketch10.addConstraint(Sketcher.Constraint("Equal", 3, 4))
sketch10.addConstraint(Sketcher.Constraint("Equal", 4, 5))
sketch10.addConstraint(Sketcher.Constraint("Symmetric", 1, 3, 4, 3, -2))
sketch10.addConstraint(Sketcher.Constraint("PointOnObject", 2, 3, -2))
sketch10.addConstraint(Sketcher.Constraint("Diameter", 0, Q("3 mm")))
sketch10.addConstraint(Sketcher.Constraint("Diameter", 6, Q("9.576 mm")))
sketch10.addConstraint(Sketcher.Constraint("DistanceY", 2, 3, -1, 1, Q("14.1 mm")))
sketch10.addConstraint(Sketcher.Constraint("DistanceY", -1, 1, 1, 3, Q("7.05 mm")))
sketch10.addConstraint(Sketcher.Constraint("DistanceX", 0, 3, -1, 1, Q("13.885789 mm")))
sketch10.addConstraint(Sketcher.Constraint("DistanceY", 0, 3, -1, 1, Q("2.448439 mm")))
sketch10.addConstraint(Sketcher.Constraint("DistanceX", 1, 3, -1, 1, Q("12.210958 mm")))
sketch10.addConstraint(Sketcher.Constraint("DistanceX", 5, 3, 3, 3, Q("4.240821 mm")))
sketch10.addConstraint(Sketcher.Constraint("DistanceX", -1, 1, 3, 3, Q("9.063305 mm")))
sketch10.addConstraint(Sketcher.Constraint("DistanceY", 3, 3, -1, 1, Q("10.801227 mm")))
sketch10.addConstraint(Sketcher.Constraint("DistanceY", -1, 1, 5, 3, Q("13.249666 mm")))
sketch10.setExpression("Constraints[8]", "Params.sketch10_diameter")
pocket4 = doc.addObject("PartDesign::Pocket", "Pocket003")
body.addObject(pocket4)
pocket4.Profile = sketch10
pocket4.setExpression("Length", "Params.pocket4_length")
pocket4.Reversed = True

doc.recompute()
